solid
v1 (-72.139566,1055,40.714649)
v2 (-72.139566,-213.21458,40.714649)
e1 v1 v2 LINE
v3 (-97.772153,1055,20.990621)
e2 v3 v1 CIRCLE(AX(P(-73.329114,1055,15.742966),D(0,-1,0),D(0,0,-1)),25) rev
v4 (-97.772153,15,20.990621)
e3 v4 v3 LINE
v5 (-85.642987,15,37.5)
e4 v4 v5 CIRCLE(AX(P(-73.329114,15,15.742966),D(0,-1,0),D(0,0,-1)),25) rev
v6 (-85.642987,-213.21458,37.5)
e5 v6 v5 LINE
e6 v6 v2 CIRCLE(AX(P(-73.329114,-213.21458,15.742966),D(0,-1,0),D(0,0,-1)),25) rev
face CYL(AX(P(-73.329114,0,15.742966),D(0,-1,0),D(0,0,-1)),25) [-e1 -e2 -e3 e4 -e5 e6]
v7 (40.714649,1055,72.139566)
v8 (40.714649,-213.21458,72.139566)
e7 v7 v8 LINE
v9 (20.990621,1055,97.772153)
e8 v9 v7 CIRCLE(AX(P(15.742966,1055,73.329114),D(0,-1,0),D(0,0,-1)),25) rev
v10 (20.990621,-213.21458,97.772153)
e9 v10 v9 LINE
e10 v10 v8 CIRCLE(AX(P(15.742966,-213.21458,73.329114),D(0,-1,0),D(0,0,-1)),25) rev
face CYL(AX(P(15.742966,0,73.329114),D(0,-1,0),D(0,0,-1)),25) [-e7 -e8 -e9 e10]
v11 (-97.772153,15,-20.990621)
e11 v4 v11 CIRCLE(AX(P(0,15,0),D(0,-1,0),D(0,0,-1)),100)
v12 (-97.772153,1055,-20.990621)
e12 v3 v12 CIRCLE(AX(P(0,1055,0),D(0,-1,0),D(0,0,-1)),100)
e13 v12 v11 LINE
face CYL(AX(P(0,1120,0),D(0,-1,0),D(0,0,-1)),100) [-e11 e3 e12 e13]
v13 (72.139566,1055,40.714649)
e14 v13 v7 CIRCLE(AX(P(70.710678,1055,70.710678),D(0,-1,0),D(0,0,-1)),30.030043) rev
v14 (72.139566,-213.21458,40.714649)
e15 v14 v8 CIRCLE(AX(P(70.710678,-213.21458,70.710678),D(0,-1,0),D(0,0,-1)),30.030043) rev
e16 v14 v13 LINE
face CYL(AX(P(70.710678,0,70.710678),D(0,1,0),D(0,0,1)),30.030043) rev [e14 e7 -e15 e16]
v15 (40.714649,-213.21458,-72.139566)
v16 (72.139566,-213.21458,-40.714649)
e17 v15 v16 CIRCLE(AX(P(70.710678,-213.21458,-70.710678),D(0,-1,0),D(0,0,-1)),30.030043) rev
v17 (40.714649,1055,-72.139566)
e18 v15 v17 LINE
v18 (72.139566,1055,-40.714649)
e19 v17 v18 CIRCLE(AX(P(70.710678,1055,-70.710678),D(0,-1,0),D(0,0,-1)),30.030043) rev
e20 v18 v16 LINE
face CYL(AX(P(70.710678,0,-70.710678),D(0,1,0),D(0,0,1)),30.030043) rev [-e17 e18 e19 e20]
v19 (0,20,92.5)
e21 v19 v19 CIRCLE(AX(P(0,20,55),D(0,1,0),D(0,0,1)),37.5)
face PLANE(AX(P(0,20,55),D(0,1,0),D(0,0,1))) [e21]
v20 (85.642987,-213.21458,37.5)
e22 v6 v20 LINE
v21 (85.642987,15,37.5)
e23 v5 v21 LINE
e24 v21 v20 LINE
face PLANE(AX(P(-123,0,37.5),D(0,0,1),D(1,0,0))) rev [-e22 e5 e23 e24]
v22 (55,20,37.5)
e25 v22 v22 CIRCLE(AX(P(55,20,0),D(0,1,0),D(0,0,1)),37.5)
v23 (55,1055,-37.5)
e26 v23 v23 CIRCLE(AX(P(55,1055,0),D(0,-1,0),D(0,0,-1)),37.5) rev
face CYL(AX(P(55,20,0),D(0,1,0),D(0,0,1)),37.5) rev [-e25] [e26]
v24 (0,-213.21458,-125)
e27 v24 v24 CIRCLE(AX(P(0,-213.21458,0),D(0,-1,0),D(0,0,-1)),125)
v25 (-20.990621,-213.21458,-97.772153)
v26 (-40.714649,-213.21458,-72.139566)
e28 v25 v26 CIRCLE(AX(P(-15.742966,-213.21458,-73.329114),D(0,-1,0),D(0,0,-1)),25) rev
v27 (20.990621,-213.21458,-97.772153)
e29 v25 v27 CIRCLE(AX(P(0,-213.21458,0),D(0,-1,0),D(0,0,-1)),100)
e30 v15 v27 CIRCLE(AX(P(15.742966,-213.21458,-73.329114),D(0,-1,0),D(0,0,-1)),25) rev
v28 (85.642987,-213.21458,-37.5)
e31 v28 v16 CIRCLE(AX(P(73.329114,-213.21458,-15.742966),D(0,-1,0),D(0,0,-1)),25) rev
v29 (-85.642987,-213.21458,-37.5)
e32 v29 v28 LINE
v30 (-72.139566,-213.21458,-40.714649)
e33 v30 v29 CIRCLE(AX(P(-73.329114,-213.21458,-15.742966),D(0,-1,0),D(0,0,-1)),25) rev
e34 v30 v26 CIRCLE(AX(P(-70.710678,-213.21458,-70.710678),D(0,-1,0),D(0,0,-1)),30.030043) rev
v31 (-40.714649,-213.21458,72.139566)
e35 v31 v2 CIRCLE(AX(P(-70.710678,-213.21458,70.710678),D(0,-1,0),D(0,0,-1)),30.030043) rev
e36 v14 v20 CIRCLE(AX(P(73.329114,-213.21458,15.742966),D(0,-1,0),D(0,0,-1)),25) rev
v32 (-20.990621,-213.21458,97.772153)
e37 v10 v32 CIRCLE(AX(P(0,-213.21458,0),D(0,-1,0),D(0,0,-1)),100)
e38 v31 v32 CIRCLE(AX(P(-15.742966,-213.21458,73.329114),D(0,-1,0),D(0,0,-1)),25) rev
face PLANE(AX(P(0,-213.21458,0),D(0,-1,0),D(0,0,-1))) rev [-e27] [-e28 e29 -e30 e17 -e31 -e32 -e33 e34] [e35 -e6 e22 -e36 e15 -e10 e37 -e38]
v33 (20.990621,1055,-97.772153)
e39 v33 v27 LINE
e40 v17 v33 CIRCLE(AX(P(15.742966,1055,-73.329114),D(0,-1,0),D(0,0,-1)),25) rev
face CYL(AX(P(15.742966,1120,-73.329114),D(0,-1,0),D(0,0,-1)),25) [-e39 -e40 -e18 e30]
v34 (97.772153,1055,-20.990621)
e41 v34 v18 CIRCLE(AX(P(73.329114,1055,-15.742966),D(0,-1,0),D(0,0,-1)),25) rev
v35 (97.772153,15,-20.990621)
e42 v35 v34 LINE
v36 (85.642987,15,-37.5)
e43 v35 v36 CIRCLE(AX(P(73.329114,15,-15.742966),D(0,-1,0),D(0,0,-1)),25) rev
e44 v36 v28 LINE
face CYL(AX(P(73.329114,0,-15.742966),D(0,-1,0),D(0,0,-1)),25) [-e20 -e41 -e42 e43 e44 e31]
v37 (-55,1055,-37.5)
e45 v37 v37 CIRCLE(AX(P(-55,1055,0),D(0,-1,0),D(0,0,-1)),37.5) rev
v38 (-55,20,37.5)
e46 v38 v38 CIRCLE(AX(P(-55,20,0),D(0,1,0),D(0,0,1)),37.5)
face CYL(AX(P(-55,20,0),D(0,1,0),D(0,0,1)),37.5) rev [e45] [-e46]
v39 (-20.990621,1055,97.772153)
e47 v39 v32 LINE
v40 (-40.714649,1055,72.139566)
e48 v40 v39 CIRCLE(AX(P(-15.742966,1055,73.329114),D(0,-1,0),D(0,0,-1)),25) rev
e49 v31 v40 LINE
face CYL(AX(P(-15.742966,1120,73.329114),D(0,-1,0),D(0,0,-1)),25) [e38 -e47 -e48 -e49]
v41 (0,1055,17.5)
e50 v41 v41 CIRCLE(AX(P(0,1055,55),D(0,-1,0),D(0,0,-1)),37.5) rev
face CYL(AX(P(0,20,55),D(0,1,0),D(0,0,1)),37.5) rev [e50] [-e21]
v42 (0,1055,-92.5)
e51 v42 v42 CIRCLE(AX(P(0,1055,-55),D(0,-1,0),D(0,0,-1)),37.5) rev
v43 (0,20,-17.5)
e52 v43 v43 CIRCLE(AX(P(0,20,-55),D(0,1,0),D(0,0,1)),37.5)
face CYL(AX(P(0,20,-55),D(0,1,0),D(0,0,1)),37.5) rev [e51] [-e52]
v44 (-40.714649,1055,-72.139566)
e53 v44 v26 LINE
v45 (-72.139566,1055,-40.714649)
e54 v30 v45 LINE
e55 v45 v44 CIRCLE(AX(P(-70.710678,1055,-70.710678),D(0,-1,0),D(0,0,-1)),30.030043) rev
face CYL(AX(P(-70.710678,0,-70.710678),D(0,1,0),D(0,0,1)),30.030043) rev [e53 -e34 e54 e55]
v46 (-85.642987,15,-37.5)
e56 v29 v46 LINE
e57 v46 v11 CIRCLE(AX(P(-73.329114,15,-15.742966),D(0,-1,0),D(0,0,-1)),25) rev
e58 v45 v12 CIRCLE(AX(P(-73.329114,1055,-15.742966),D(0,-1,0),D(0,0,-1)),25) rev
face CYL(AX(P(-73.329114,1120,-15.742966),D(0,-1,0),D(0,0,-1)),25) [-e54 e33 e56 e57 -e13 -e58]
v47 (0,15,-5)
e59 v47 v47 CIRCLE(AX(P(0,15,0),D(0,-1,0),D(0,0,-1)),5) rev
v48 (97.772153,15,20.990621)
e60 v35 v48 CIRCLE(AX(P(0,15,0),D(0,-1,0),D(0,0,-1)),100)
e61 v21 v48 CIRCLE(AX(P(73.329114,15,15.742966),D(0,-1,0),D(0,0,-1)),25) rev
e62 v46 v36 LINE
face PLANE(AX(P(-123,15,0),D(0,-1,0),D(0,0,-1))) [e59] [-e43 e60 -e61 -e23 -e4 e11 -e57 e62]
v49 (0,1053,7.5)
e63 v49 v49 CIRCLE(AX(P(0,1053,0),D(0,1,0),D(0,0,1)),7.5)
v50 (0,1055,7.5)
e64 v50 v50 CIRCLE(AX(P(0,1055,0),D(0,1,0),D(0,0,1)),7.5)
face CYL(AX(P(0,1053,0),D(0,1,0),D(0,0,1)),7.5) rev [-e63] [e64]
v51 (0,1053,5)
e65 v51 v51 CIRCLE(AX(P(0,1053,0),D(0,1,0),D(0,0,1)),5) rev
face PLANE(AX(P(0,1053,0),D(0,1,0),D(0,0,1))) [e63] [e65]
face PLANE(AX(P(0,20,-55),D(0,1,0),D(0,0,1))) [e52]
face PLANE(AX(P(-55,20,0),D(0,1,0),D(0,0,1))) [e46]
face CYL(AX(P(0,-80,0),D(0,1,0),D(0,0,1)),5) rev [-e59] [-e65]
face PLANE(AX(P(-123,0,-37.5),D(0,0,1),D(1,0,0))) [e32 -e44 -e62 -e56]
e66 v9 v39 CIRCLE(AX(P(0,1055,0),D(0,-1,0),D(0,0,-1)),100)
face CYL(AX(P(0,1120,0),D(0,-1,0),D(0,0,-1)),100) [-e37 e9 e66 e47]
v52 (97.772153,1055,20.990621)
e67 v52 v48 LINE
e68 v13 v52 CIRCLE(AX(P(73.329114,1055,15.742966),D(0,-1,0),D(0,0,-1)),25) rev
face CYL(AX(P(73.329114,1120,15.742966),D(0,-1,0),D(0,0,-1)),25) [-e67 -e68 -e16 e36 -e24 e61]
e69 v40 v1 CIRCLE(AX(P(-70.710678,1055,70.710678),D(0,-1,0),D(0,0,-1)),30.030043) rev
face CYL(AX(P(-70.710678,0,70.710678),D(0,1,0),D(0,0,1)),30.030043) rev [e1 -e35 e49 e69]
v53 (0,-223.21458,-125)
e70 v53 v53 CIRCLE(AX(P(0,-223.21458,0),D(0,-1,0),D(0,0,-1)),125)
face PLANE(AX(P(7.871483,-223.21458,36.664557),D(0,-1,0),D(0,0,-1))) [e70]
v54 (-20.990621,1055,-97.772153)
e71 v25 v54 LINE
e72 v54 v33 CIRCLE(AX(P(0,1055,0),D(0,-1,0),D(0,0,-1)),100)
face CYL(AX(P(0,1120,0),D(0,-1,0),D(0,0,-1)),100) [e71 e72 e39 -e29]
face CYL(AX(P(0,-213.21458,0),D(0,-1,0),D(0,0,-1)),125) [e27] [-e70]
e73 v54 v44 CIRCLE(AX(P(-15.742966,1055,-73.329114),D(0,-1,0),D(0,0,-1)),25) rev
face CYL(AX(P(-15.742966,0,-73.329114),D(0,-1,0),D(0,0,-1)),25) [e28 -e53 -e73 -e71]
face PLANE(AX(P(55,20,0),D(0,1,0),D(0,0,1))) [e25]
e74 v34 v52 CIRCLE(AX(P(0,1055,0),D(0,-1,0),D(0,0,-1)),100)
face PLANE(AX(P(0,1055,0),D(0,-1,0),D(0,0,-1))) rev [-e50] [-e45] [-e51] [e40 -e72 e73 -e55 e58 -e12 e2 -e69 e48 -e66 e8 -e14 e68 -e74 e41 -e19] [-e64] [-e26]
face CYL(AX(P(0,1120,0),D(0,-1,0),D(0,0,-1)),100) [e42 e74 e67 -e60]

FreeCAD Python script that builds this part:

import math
import FreeCAD as App
import Part
import Sketcher

V = App.Vector


def edges_at(feature, points):
    """Names of the edges that pass closest to the given points."""
    edges = feature.Shape.Edges
    near = lambda p: min(range(len(edges)), key=lambda i: edges[i].distToShape(Part.Vertex(*p))[0])
    return sorted({f"Edge{near(p) + 1}" for p in points})


def add_polygon(sketch, points):
    """Adds a closed chain of lines whose ends are joined by coincident constraints."""
    first, n = sketch.GeometryCount, len(points)
    for a, b in zip(points, points[1:] + points[:1]):
        sketch.addGeometry(Part.LineSegment(App.Vector(*a, 0), App.Vector(*b, 0)), False)
    for i in range(n):
        sketch.addConstraint(Sketcher.Constraint("Coincident", first + i, 2, first + (i + 1) % n, 1))

doc = App.newDocument("Part")
params = doc.addObject("Spreadsheet::Sheet", "Params")
for row, (alias, value) in enumerate([
    ("sketch1_diameter", "200 mm"),
    ("pad1_length", "1120 mm"),
    ("sketch2_diameter", "75 mm"),
    ("pocket1_length", "1100 mm"),
    ("sketch4_diameter", "10 mm"),
    ("pocket3_length", "1200 mm"),
    ("fillet_radius", "25 mm"),
    ("pocket4_length", "65 mm"),
    ("sketch6_diameter", "15 mm"),
    ("pocket5_length", "2 mm"),
    ("sketch7_radius", "100 mm"),
    ("sketch7_radius2", "25 mm"),
    ("pad2_length", "223.21458 mm"),
    ("sketch8_diameter", "250 mm"),
    ("pad3_length", "10 mm"),
    ("sketch9_height", "75 mm"),
    ("pocket6_length", "246 mm"),
], start=1):
    params.set(f"A{row}", alias)
    params.set(f"B{row}", "=" + value)
    params.setAlias(f"B{row}", alias)

body = doc.addObject("PartDesign::Body", "Body")

# Sketch on XZ plane
sketch1 = body.newObject("Sketcher::SketchObject", "Sketch")
sketch1.AttachmentSupport = (doc.getObject("XZ_Plane"), [""])
sketch1.MapMode = "FlatFace"
sketch1.addGeometry(Part.Circle(V(0, 0, 0), V(0, 0, 1), 100), False)
sketch1.addConstraint([
    Sketcher.Constraint("Coincident", 0, 3, -1, 1),
    Sketcher.Constraint("Diameter", 0, 200.0),
])
sketch1.setExpression("Constraints[1]", "Params.sketch1_diameter")
pad1 = body.newObject("PartDesign::Pad", "Pad")
pad1.Profile = sketch1
pad1.setExpression("Length", "Params.pad1_length")
pad1.Reversed = True

# Sketch on XZ plane
sketch2 = body.newObject("Sketcher::SketchObject", "Sketch001")
sketch2.AttachmentSupport = (doc.getObject("XZ_Plane"), [""])
sketch2.MapMode = "FlatFace"
sketch2.AttachmentOffset = App.Placement(V(0, 0, -1120), App.Rotation())
sketch2.addGeometry([
    Part.Circle(V(55, 0, 0), V(0, 0, 1), 37.5),
    Part.Circle(V(0, -55, 0), V(0, 0, 1), 37.5),
    Part.Circle(V(-55, 0, 0), V(0, 0, 1), 37.5),
    Part.Circle(V(0, 55, 0), V(0, 0, 1), 37.5),
], False)
sketch2.addConstraint([
    Sketcher.Constraint("Equal", 0, 1),
    Sketcher.Constraint("Equal", 1, 2),
    Sketcher.Constraint("Equal", 2, 3),
    Sketcher.Constraint("Symmetric", 0, 3, 2, 3, -1, 1),
    Sketcher.Constraint("Symmetric", 1, 3, 3, 3, -1, 1),
    Sketcher.Constraint("PointOnObject", 0, 3, -1),
    Sketcher.Constraint("PointOnObject", 1, 3, -2),
    Sketcher.Constraint("Diameter", 0, 75.0),
    Sketcher.Constraint("DistanceX", -1, 1, 0, 3, 55.0),
    Sketcher.Constraint("DistanceY", 1, 3, -1, 1, 55.0),
])
sketch2.setExpression("Constraints[7]", "Params.sketch2_diameter")
pocket1 = body.newObject("PartDesign::Pocket", "Pocket")
pocket1.Profile = sketch2
pocket1.setExpression("Length", "Params.pocket1_length")
pocket1.Reversed = True

# Sketch on XZ plane
sketch3 = body.newObject("Sketcher::SketchObject", "Sketch002")
sketch3.AttachmentSupport = (doc.getObject("XZ_Plane"), [""])
sketch3.MapMode = "FlatFace"
sketch3.AttachmentOffset = App.Placement(V(0, 0, -1120), App.Rotation())
sketch3.addGeometry([
    Part.Circle(V(-70.710678, -70.710678, 0), V(0, 0, 1), 30.030043),
    Part.Circle(V(70.710678, -70.710678, 0), V(0, 0, 1), 30.030043),
    Part.Circle(V(70.710678, 70.710678, 0), V(0, 0, 1), 30.030043),
    Part.Circle(V(-70.710678, 70.710678, 0), V(0, 0, 1), 30.030043),
], False)
sketch3.addConstraint([
    Sketcher.Constraint("Equal", 0, 1),
    Sketcher.Constraint("Equal", 1, 2),
    Sketcher.Constraint("Equal", 2, 3),
    Sketcher.Constraint("Symmetric", 0, 3, 2, 3, -1, 1),
    Sketcher.Constraint("Symmetric", 1, 3, 3, 3, -1, 1),
    Sketcher.Constraint("Symmetric", 0, 3, 1, 3, -2),
    Sketcher.Constraint("Diameter", 0, 60.060086),
    Sketcher.Constraint("DistanceX", 0, 3, -1, 1, 70.710678),
    Sketcher.Constraint("DistanceY", 0, 3, -1, 1, 70.710678),
])
pocket2 = body.newObject("PartDesign::Pocket", "Pocket001")
pocket2.Profile = sketch3
pocket2.Type = "ThroughAll"
pocket2.Reversed = True

# Sketch on XZ plane
sketch4 = body.newObject("Sketcher::SketchObject", "Sketch003")
sketch4.AttachmentSupport = (doc.getObject("XZ_Plane"), [""])
sketch4.MapMode = "FlatFace"
sketch4.AttachmentOffset = App.Placement(V(0, 0, -1120), App.Rotation())
sketch4.addGeometry(Part.Circle(V(0, 0, 0), V(0, 0, 1), 5), False)
sketch4.addConstraint([
    Sketcher.Constraint("Coincident", 0, 3, -1, 1),
    Sketcher.Constraint("Diameter", 0, 10.0),
])
sketch4.setExpression("Constraints[1]", "Params.sketch4_diameter")
pocket3 = body.newObject("PartDesign::Pocket", "Pocket002")
pocket3.Profile = sketch4
pocket3.setExpression("Length", "Params.pocket3_length")
pocket3.Reversed = True
doc.recompute()

fillet = body.newObject("PartDesign::Fillet", "Fillet")
fillet.Base = (pocket3, edges_at(pocket3, [
    (-46.529, 560, 88.516),
    (-88.516, 560, 46.529),
    (88.516, 560, 46.529),
    (46.529, 560, 88.516),
    (46.529, 560, -88.516),
    (88.516, 560, -46.529),
    (-88.516, 560, -46.529),
    (-46.529, 560, -88.516),
]))
fillet.setExpression("Radius", "Params.fillet_radius")

# Sketch on XZ plane
sketch5 = body.newObject("Sketcher::SketchObject", "Sketch004")
sketch5.AttachmentSupport = (doc.getObject("XZ_Plane"), [""])
sketch5.MapMode = "FlatFace"
sketch5.AttachmentOffset = App.Placement(V(0, 0, -1120), App.Rotation())
add_polygon(sketch5, [(-128.30471, -155.205977), (-128.30471, 161.042584), (147.875623, 161.042584), (147.875623, -155.205977)])  # lines 0-3
sketch5.addConstraint([
    Sketcher.Constraint("Vertical", 0),
    Sketcher.Constraint("Horizontal", 1),
    Sketcher.Constraint("Vertical", 2),
    Sketcher.Constraint("Horizontal", 3),
    Sketcher.Constraint("DistanceY", 0, 1, 0, 2, 316.248561),
    Sketcher.Constraint("DistanceX", 1, 1, 1, 2, 276.180334),
    Sketcher.Constraint("DistanceX", 0, 2, -1, 1, 128.30471),
    Sketcher.Constraint("DistanceY", -1, 1, 0, 2, 161.042584),
])
pocket4 = body.newObject("PartDesign::Pocket", "Pocket003")
pocket4.Profile = sketch5
pocket4.setExpression("Length", "Params.pocket4_length")
pocket4.Reversed = True

# Sketch on XZ plane
sketch6 = body.newObject("Sketcher::SketchObject", "Sketch005")
sketch6.AttachmentSupport = (doc.getObject("XZ_Plane"), [""])
sketch6.MapMode = "FlatFace"
sketch6.AttachmentOffset = App.Placement(V(0, 0, -1055), App.Rotation())
sketch6.addGeometry(Part.Circle(V(0, 0, 0), V(0, 0, 1), 7.5), False)
sketch6.addConstraint([
    Sketcher.Constraint("Coincident", 0, 3, -1, 1),
    Sketcher.Constraint("Diameter", 0, 15.0),
])
sketch6.setExpression("Constraints[1]", "Params.sketch6_diameter")
pocket5 = body.newObject("PartDesign::Pocket", "Pocket004")
pocket5.Profile = sketch6
pocket5.setExpression("Length", "Params.pocket5_length")
pocket5.Reversed = True

# Sketch on XZ plane
sketch7 = body.newObject("Sketcher::SketchObject", "Sketch006")
sketch7.AttachmentSupport = (doc.getObject("XZ_Plane"), [""])
sketch7.MapMode = "FlatFace"
sketch7.AttachmentOffset = App.Placement(V(0, 0, 223.21458), App.Rotation())
sketch7.addGeometry([
    Part.ArcOfCircle(Part.Circle(V(0, 0, 0), V(0, 0, 1), 100), math.radians(77.883144), math.radians(102.116856)),  # 0
    Part.ArcOfCircle(Part.Circle(V(-15.742966, 73.329114, 0), V(0, 0, 1), 25), math.radians(102.116856), math.radians(182.727274)),  # 1
    Part.ArcOfCircle(Part.Circle(V(-70.710678, 70.710678, 0), V(0, 0, 1), 30.030043), math.radians(-92.727274), math.radians(2.727274)),  # 2
    Part.ArcOfCircle(Part.Circle(V(-73.329114, 15.742966, 0), V(0, 0, 1), 25), math.radians(87.272726), math.radians(167.883144)),  # 3
    Part.ArcOfCircle(Part.Circle(V(0, 0, 0), V(0, 0, 1), 100), math.radians(167.883144), math.radians(192.116856)),  # 4
    Part.ArcOfCircle(Part.Circle(V(-73.329114, -15.742966, 0), V(0, 0, 1), 25), math.radians(-167.883144), math.radians(-87.272726)),  # 5
    Part.ArcOfCircle(Part.Circle(V(-70.710678, -70.710678, 0), V(0, 0, 1), 30.030043), math.radians(-2.727274), math.radians(92.727274)),  # 6
    Part.ArcOfCircle(Part.Circle(V(-15.742966, -73.329114, 0), V(0, 0, 1), 25), math.radians(177.272726), math.radians(257.883144)),  # 7
    Part.ArcOfCircle(Part.Circle(V(0, 0, 0), V(0, 0, 1), 100), math.radians(-102.116856), math.radians(-77.883144)),  # 8
    Part.ArcOfCircle(Part.Circle(V(15.742966, -73.329114, 0), V(0, 0, 1), 25), math.radians(-77.883144), math.radians(2.727274)),  # 9
    Part.ArcOfCircle(Part.Circle(V(70.710678, -70.710678, 0), V(0, 0, 1), 30.030043), math.radians(87.272726), math.radians(182.727274)),  # 10
    Part.ArcOfCircle(Part.Circle(V(73.329114, -15.742966, 0), V(0, 0, 1), 25), math.radians(-92.727274), math.radians(-12.116856)),  # 11
    Part.ArcOfCircle(Part.Circle(V(0, 0, 0), V(0, 0, 1), 100), math.radians(-12.116856), math.radians(12.116856)),  # 12
    Part.ArcOfCircle(Part.Circle(V(73.329114, 15.742966, 0), V(0, 0, 1), 25), math.radians(12.116856), math.radians(92.727274)),  # 13
    Part.ArcOfCircle(Part.Circle(V(70.710678, 70.710678, 0), V(0, 0, 1), 30.030043), math.radians(177.272726), math.radians(272.727274)),  # 14
    Part.ArcOfCircle(Part.Circle(V(15.742966, 73.329114, 0), V(0, 0, 1), 25), math.radians(-2.727274), math.radians(77.883144)),  # 15
], False)
sketch7.addConstraint([
    Sketcher.Constraint("Tangent", 0, 2, 1, 1),
    Sketcher.Constraint("Tangent", 1, 2, 2, 2),
    Sketcher.Constraint("Tangent", 2, 1, 3, 1),
    Sketcher.Constraint("Tangent", 3, 2, 4, 1),
    Sketcher.Constraint("Tangent", 4, 2, 5, 1),
    Sketcher.Constraint("Tangent", 5, 2, 6, 2),
    Sketcher.Constraint("Tangent", 6, 1, 7, 1),
    Sketcher.Constraint("Tangent", 7, 2, 8, 1),
    Sketcher.Constraint("Tangent", 8, 2, 9, 1),
    Sketcher.Constraint("Tangent", 9, 2, 10, 2),
    Sketcher.Constraint("Tangent", 10, 1, 11, 1),
    Sketcher.Constraint("Tangent", 11, 2, 12, 1),
    Sketcher.Constraint("Tangent", 12, 2, 13, 1),
    Sketcher.Constraint("Tangent", 13, 2, 14, 2),
    Sketcher.Constraint("Tangent", 14, 1, 15, 1),
    Sketcher.Constraint("Tangent", 15, 2, 0, 1),
    Sketcher.Constraint("Coincident", 0, 3, -1, 1),
    Sketcher.Constraint("Coincident", 4, 3, -1, 1),
    Sketcher.Constraint("Coincident", 8, 3, -1, 1),
    Sketcher.Constraint("Coincident", 12, 3, -1, 1),
    Sketcher.Constraint("Equal", 1, 3),
    Sketcher.Constraint("Equal", 0, 4),
    Sketcher.Constraint("Equal", 3, 5),
    Sketcher.Constraint("Equal", 2, 6),
    Sketcher.Constraint("Equal", 5, 7),
    Sketcher.Constraint("Equal", 4, 8),
    Sketcher.Constraint("Equal", 7, 9),
    Sketcher.Constraint("Equal", 6, 10),
    Sketcher.Constraint("Equal", 9, 11),
    Sketcher.Constraint("Equal", 8, 12),
    Sketcher.Constraint("Equal", 11, 13),
    Sketcher.Constraint("Equal", 10, 14),
    Sketcher.Constraint("Equal", 13, 15),
    Sketcher.Constraint("Symmetric", 2, 3, 10, 3, -1, 1),
    Sketcher.Constraint("Symmetric", 6, 3, 14, 3, -1, 1),
    Sketcher.Constraint("Symmetric", 6, 3, 10, 3, -2),
    Sketcher.Constraint("Radius", 0, 100.0),
    Sketcher.Constraint("Radius", 1, 25.0),
    Sketcher.Constraint("Radius", 2, 30.030043),
    Sketcher.Constraint("DistanceX", 0, 2, 14, 3, 91.701299),
    Sketcher.Constraint("DistanceY", 3, 3, 1, 2, 56.3966),
])
sketch7.setExpression("Constraints[36]", "Params.sketch7_radius")
sketch7.setExpression("Constraints[37]", "Params.sketch7_radius2")
pad2 = body.newObject("PartDesign::Pad", "Pad001")
pad2.Profile = sketch7
pad2.setExpression("Length", "Params.pad2_length")
pad2.Reversed = True

# Sketch on XZ plane
sketch8 = body.newObject("Sketcher::SketchObject", "Sketch007")
sketch8.AttachmentSupport = (doc.getObject("XZ_Plane"), [""])
sketch8.MapMode = "FlatFace"
sketch8.AttachmentOffset = App.Placement(V(0, 0, 223.21458), App.Rotation())
sketch8.addGeometry(Part.Circle(V(0, 0, 0), V(0, 0, 1), 125), False)
sketch8.addConstraint([
    Sketcher.Constraint("Coincident", 0, 3, -1, 1),
    Sketcher.Constraint("Diameter", 0, 250.0),
])
sketch8.setExpression("Constraints[1]", "Params.sketch8_diameter")
pad3 = body.newObject("PartDesign::Pad", "Pad002")
pad3.Profile = sketch8
pad3.setExpression("Length", "Params.pad3_length")
pad3.Reversed = True

# Sketch on YZ plane
sketch9 = body.newObject("Sketcher::SketchObject", "Sketch008")
sketch9.AttachmentSupport = (doc.getObject("YZ_Plane"), [""])
sketch9.MapMode = "FlatFace"
add_polygon(sketch9, [(15, 37.5), (-213.21458, 37.5), (-213.21458, -37.5), (15, -37.5)])  # lines 0-3
sketch9.addConstraint([
    Sketcher.Constraint("Horizontal", 0),
    Sketcher.Constraint("Vertical", 1),
    Sketcher.Constraint("Horizontal", 2),
    Sketcher.Constraint("Vertical", 3),
    Sketcher.Constraint("DistanceY", 1, 2, 1, 1, 75.0),
    Sketcher.Constraint("DistanceX", -1, 1, 2, 2, 15.0),
    Sketcher.Constraint("DistanceY", -1, 1, 0, 2, 37.5),
    Sketcher.Constraint("DistanceX", 0, 2, 0, 1, 228.21458),
])
sketch9.setExpression("Constraints[8]", "Params.sketch9_height")
pocket6 = body.newObject("PartDesign::Pocket", "Pocket005")
pocket6.Profile = sketch9
pocket6.setExpression("Length", "Params.pocket6_length")
pocket6.Midplane = True

doc.recompute()
